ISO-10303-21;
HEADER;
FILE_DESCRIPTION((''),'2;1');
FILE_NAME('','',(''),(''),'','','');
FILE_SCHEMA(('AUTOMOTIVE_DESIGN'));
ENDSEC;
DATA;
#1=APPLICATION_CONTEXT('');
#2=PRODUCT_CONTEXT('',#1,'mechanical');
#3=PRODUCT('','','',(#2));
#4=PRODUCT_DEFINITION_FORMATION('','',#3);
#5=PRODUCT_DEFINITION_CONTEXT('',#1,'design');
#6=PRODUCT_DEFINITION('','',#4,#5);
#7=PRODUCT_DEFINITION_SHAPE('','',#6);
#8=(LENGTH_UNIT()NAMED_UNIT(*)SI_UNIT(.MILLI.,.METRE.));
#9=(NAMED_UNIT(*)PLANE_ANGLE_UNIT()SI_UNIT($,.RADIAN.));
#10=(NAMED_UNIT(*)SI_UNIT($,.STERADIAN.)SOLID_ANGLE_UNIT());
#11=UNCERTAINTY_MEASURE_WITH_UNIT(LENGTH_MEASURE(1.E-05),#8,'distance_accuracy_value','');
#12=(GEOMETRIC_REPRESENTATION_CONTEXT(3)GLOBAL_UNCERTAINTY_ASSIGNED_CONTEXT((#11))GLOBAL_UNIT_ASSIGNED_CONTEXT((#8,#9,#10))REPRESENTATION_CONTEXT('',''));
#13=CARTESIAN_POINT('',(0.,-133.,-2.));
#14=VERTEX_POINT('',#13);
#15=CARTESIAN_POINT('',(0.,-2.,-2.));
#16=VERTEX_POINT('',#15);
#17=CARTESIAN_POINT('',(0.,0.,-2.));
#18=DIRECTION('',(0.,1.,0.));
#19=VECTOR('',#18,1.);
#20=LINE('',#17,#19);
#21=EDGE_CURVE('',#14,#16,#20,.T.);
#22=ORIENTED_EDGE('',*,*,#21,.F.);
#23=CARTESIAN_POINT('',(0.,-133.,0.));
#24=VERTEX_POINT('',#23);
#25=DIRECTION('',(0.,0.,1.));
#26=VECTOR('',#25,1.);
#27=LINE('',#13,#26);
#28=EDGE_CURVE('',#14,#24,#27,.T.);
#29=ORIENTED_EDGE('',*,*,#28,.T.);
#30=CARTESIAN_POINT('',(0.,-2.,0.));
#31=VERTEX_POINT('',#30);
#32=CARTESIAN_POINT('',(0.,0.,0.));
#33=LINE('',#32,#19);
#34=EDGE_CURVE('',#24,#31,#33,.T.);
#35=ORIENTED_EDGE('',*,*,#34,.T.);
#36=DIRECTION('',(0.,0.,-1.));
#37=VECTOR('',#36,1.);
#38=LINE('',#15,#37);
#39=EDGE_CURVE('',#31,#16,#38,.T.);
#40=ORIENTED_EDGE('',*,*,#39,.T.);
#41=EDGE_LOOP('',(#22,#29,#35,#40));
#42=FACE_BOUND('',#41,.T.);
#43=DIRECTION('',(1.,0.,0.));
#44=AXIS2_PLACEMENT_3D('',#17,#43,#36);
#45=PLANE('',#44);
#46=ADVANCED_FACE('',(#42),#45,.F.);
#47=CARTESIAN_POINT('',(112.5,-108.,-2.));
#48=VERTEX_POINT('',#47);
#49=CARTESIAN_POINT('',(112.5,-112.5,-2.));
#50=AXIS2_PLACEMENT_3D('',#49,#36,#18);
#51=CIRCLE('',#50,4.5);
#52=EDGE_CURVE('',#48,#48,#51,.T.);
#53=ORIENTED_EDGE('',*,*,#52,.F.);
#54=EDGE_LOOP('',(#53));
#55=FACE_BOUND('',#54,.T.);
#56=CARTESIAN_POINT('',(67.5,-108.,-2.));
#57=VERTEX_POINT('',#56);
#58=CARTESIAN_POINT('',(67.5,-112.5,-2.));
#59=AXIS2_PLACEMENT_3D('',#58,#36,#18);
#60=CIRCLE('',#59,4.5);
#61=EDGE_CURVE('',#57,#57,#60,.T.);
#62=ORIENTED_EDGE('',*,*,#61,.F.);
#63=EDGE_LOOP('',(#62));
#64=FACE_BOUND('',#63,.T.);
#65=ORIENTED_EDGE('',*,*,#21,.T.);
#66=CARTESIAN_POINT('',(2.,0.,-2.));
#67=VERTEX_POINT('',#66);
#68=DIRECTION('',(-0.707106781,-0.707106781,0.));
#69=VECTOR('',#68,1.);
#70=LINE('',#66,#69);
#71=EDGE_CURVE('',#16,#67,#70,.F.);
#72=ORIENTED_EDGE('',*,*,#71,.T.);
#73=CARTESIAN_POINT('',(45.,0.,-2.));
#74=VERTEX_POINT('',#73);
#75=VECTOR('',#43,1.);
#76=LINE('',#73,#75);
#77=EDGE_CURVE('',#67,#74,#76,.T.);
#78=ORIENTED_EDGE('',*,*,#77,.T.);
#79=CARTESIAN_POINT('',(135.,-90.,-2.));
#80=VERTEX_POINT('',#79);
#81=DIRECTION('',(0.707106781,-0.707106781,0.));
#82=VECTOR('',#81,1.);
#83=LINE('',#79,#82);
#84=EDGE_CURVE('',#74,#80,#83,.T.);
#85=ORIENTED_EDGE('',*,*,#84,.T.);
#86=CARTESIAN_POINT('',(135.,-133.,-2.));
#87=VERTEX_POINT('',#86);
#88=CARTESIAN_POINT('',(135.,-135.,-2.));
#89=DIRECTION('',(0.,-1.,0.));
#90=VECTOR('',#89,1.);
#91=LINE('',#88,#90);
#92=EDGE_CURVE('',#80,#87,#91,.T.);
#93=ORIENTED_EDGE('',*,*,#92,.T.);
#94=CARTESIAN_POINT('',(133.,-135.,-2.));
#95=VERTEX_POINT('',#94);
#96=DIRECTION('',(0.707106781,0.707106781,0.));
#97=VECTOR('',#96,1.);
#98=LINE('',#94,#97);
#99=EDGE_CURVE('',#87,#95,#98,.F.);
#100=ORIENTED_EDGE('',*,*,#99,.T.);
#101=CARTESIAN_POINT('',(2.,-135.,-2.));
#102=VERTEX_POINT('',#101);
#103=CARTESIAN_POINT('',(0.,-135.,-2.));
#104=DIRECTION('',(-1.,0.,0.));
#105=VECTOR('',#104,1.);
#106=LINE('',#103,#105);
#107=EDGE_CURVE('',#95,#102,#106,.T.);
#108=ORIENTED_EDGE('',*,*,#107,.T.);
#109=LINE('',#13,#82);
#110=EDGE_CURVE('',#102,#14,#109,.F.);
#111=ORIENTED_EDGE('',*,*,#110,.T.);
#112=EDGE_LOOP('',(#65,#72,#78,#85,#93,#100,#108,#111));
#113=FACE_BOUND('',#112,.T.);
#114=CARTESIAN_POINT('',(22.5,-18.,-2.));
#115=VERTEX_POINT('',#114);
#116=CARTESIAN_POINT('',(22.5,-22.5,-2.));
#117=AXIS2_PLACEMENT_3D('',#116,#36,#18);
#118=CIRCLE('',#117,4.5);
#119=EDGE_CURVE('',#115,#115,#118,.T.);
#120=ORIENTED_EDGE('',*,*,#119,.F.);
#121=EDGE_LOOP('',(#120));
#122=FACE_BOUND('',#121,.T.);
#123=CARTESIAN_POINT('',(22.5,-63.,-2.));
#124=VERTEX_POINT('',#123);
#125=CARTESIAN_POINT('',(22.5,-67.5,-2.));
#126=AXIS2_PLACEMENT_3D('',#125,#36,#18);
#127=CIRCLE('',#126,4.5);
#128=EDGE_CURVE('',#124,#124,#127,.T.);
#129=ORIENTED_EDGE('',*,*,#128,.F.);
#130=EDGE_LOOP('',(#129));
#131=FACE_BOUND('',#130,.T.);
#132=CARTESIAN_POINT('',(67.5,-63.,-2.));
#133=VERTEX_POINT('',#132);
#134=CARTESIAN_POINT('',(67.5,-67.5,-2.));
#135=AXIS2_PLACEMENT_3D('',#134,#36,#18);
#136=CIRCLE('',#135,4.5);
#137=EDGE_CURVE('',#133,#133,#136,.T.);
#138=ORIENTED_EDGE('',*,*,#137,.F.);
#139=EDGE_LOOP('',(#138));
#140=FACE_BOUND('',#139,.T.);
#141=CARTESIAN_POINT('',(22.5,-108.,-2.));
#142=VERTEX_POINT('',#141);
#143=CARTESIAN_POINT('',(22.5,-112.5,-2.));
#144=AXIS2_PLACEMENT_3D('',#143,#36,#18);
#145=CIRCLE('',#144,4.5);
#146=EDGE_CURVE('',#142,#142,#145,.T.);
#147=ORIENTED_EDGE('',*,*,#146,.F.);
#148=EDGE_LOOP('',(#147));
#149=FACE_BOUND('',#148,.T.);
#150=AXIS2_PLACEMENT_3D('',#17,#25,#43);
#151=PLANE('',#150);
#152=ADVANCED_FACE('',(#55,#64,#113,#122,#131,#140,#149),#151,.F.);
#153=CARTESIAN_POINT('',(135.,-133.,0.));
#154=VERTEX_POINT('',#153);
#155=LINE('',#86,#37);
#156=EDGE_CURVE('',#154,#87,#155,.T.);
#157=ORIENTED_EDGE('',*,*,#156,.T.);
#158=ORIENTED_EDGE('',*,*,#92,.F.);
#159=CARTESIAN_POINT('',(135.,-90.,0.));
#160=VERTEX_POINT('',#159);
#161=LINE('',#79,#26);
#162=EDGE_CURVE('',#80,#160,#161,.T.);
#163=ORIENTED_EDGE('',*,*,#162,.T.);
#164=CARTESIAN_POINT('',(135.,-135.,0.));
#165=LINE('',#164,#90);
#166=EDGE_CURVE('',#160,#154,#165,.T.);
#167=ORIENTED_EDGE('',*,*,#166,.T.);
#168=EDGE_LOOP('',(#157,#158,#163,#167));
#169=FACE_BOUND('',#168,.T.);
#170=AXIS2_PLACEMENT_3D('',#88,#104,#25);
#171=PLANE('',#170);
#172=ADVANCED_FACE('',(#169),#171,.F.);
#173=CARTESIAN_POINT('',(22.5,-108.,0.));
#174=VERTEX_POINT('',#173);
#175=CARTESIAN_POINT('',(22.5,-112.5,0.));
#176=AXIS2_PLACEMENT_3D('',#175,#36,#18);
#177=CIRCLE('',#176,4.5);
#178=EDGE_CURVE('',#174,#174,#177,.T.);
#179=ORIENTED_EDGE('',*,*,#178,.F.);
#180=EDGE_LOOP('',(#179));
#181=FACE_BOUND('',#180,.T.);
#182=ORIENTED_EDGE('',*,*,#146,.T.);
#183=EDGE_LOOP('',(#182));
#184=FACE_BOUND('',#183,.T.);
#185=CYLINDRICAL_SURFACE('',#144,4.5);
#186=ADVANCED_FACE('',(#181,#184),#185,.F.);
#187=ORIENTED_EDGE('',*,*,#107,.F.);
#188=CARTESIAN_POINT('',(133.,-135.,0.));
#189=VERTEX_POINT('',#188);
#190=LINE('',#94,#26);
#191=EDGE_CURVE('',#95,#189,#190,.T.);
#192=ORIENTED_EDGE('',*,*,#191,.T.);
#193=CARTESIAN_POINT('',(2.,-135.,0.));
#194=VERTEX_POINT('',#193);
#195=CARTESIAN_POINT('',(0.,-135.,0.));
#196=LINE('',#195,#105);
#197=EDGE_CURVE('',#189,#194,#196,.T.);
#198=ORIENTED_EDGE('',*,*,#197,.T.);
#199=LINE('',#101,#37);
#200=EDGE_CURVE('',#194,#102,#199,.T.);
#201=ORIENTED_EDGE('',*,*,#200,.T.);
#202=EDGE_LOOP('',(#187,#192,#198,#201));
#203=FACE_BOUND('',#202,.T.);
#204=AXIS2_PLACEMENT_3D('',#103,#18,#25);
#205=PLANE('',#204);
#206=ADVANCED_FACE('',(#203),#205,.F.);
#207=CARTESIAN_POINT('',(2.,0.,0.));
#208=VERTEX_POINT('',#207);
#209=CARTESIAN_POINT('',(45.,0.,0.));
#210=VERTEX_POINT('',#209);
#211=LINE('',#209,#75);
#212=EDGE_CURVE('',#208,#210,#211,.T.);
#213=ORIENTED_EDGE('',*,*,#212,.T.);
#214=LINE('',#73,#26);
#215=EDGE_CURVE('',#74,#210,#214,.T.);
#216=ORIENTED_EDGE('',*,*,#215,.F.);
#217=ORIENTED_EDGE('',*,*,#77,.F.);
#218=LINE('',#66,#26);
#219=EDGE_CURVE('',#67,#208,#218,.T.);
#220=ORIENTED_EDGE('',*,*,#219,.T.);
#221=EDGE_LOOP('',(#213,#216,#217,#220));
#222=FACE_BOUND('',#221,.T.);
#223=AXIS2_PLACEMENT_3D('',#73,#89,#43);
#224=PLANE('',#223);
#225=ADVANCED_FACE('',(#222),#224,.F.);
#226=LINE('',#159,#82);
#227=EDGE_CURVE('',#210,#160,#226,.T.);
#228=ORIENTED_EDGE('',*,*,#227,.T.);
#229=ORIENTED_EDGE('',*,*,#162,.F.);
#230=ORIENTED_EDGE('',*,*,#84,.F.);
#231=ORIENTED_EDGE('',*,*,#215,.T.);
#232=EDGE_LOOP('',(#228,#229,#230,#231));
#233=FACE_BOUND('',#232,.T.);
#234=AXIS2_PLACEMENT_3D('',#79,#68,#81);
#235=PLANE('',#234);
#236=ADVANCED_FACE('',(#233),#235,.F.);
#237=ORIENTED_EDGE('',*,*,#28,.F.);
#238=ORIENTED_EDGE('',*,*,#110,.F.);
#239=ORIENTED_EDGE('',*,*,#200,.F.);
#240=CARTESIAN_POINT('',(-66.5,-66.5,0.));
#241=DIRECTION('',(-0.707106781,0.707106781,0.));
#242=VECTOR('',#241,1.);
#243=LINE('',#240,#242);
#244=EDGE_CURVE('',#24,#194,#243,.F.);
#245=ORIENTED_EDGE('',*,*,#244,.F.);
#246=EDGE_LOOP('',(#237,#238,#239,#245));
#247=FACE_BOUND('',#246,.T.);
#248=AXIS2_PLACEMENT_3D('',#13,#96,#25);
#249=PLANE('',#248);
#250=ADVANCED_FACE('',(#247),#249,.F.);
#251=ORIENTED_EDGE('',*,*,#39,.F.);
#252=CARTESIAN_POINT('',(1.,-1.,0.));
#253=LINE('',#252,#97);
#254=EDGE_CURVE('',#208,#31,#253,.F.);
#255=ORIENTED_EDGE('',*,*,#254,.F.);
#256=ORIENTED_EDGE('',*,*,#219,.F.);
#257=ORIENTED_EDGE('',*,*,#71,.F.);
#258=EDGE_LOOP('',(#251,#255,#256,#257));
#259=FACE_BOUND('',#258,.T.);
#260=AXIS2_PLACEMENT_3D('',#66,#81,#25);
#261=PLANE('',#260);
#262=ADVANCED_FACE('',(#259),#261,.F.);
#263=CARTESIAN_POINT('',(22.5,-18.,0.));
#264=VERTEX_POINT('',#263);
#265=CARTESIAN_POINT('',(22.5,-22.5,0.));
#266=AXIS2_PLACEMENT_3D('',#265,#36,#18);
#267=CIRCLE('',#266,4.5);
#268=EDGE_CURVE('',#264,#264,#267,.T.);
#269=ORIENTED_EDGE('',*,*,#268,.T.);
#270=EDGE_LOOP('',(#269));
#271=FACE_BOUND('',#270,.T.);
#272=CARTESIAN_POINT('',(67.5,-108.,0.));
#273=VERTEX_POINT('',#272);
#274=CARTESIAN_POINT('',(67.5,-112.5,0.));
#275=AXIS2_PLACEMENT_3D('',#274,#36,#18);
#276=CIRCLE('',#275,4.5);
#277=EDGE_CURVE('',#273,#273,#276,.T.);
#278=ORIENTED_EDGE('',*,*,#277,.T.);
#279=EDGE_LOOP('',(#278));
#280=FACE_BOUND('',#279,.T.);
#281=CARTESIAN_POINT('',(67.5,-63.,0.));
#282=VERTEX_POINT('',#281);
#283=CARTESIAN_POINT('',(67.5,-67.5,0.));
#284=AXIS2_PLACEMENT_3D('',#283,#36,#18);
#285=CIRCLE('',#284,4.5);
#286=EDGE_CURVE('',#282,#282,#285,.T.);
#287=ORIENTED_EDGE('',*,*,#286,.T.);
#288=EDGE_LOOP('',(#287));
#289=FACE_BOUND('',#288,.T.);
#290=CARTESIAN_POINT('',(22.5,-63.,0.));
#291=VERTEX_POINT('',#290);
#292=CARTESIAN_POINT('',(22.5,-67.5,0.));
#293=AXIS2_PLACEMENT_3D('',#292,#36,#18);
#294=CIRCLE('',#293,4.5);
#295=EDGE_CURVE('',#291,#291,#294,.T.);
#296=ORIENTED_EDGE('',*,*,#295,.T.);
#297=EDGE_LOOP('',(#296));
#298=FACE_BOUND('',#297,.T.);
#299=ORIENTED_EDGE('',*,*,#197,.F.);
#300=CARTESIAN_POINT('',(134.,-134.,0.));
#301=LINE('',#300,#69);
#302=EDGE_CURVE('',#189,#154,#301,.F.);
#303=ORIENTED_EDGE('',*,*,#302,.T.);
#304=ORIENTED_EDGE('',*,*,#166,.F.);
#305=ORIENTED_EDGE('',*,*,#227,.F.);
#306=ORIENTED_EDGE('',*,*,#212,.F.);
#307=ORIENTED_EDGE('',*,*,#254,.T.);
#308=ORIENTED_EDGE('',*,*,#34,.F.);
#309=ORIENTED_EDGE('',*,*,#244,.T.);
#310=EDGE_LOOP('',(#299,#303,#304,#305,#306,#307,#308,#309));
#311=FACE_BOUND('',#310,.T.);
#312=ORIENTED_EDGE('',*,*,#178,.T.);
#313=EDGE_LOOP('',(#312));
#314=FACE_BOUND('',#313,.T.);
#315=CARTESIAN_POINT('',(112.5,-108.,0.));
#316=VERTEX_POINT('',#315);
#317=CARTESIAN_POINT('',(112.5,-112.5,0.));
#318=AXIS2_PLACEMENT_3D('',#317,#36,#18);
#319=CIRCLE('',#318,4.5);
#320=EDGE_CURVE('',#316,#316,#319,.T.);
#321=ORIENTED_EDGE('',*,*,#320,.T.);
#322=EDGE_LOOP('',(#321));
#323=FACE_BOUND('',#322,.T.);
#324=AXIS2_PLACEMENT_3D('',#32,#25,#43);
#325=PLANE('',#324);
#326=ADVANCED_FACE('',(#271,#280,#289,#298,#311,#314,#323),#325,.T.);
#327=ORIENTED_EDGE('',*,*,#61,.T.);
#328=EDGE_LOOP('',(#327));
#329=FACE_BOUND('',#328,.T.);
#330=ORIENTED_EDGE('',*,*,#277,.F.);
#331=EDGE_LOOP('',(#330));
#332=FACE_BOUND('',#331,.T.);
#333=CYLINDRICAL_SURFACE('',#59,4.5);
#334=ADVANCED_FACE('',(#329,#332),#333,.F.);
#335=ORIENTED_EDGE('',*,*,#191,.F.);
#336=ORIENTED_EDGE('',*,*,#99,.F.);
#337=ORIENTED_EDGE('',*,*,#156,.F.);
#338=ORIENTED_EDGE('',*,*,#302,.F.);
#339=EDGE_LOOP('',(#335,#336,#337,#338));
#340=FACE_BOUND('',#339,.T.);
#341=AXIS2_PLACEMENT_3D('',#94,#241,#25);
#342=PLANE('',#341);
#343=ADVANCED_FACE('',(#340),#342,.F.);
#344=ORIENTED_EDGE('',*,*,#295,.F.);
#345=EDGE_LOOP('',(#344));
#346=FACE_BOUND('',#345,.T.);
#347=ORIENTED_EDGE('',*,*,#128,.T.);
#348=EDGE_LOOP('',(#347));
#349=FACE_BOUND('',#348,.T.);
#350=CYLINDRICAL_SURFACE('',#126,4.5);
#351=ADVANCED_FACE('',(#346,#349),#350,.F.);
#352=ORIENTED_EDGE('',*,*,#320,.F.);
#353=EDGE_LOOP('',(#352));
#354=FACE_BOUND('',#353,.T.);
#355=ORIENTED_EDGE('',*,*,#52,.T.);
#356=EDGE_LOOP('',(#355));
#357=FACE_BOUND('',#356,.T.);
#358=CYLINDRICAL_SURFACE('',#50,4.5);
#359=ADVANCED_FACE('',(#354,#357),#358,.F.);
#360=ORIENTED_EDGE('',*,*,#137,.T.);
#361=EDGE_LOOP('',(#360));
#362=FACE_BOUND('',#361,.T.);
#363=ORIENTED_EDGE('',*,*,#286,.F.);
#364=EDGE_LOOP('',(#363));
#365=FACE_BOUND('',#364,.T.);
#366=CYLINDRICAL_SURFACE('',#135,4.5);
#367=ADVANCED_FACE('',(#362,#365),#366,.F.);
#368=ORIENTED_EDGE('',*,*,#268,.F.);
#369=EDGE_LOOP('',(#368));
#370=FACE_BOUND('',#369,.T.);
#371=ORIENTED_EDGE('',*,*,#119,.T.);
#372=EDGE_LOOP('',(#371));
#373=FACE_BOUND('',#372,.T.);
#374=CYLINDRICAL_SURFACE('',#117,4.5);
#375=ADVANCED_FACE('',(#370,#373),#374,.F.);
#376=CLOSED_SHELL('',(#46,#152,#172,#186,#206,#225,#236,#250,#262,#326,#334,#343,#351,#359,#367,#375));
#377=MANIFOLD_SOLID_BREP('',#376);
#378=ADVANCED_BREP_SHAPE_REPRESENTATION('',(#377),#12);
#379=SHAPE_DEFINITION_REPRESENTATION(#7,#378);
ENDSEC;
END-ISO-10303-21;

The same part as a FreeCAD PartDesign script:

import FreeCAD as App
import Part
import Sketcher

V = App.Vector
Q = App.Units.Quantity


def edges_at(feature, points):
    """Names of the edges that pass closest to the given points."""
    edges = feature.Shape.Edges
    near = lambda p: min(range(len(edges)), key=lambda i: edges[i].distToShape(Part.Vertex(*p))[0])
    return sorted({f"Edge{near(p) + 1}" for p in points})

doc = App.newDocument("Part")
body = doc.addObject("PartDesign::Body", "Body")

sketch1 = body.newObject("Sketcher::SketchObject", "Sketch")
sketch1.AttachmentSupport = (doc.getObject("XY_Plane"), [""])
sketch1.MapMode = "FlatFace"
sketch1.addGeometry(Part.LineSegment(V(0, -135, 0), V(0, 0, 0)), False)
sketch1.addGeometry(Part.LineSegment(V(0, 0, 0), V(45, 0, 0)), False)
sketch1.addGeometry(Part.LineSegment(V(45, 0, 0), V(135, -90, 0)), False)
sketch1.addGeometry(Part.LineSegment(V(135, -90, 0), V(135, -135, 0)), False)
sketch1.addGeometry(Part.LineSegment(V(135, -135, 0), V(0, -135, 0)), False)
sketch1.addConstraint(Sketcher.Constraint("Coincident", 0, 2, 1, 1))
sketch1.addConstraint(Sketcher.Constraint("Coincident", 1, 2, 2, 1))
sketch1.addConstraint(Sketcher.Constraint("Coincident", 2, 2, 3, 1))
sketch1.addConstraint(Sketcher.Constraint("Coincident", 3, 2, 4, 1))
sketch1.addConstraint(Sketcher.Constraint("Coincident", 4, 2, 0, 1))
sketch1.addConstraint(Sketcher.Constraint("Vertical", 0))
sketch1.addConstraint(Sketcher.Constraint("Horizontal", 1))
sketch1.addConstraint(Sketcher.Constraint("Vertical", 3))
sketch1.addConstraint(Sketcher.Constraint("Horizontal", 4))
sketch1.addConstraint(Sketcher.Constraint("Coincident", 0, 2, -1, 1))
sketch1.addConstraint(Sketcher.Constraint("Equal", 4, 0))
sketch1.addConstraint(Sketcher.Constraint("Equal", 1, 3))
sketch1.addConstraint(Sketcher.Constraint("DistanceX", 1, 1, 1, 2, Q("45 mm")))
sketch1.addConstraint(Sketcher.Constraint("DistanceX", 4, 2, 4, 1, Q("135 mm")))
pad1 = body.newObject("PartDesign::Pad", "Pad")
pad1.Profile = sketch1
pad1.Length = 2
pad1.Reversed = True

sketch2 = body.newObject("Sketcher::SketchObject", "Sketch001")
sketch2.AttachmentSupport = (doc.getObject("XY_Plane"), [""])
sketch2.MapMode = "FlatFace"
sketch2.AttachmentOffset = App.Placement(V(0, 0, -2), App.Rotation())
sketch2.addGeometry(Part.Circle(V(67.5, -112.5, 0), V(0, 0, 1), 4.5), False)
sketch2.addGeometry(Part.Circle(V(22.5, -112.5, 0), V(0, 0, 1), 4.5), False)
sketch2.addGeometry(Part.Circle(V(22.5, -67.5, 0), V(0, 0, 1), 4.5), False)
sketch2.addGeometry(Part.Circle(V(22.5, -22.5, 0), V(0, 0, 1), 4.5), False)
sketch2.addGeometry(Part.Circle(V(112.5, -112.5, 0), V(0, 0, 1), 4.5), False)
sketch2.addGeometry(Part.Circle(V(67.5, -67.5, 0), V(0, 0, 1), 4.5), False)
sketch2.addConstraint(Sketcher.Constraint("Equal", 0, 1))
sketch2.addConstraint(Sketcher.Constraint("Equal", 1, 2))
sketch2.addConstraint(Sketcher.Constraint("Equal", 2, 3))
sketch2.addConstraint(Sketcher.Constraint("Equal", 3, 4))
sketch2.addConstraint(Sketcher.Constraint("Equal", 4, 5))
sketch2.addConstraint(Sketcher.Constraint("Horizontal", 0, 3, 1, 3))
sketch2.addConstraint(Sketcher.Constraint("Horizontal", 1, 3, 4, 3))
sketch2.addConstraint(Sketcher.Constraint("Horizontal", 2, 3, 5, 3))
sketch2.addConstraint(Sketcher.Constraint("Vertical", 1, 3, 2, 3))
sketch2.addConstraint(Sketcher.Constraint("Vertical", 2, 3, 3, 3))
sketch2.addConstraint(Sketcher.Constraint("Vertical", 0, 3, 5, 3))
sketch2.addConstraint(Sketcher.Constraint("Diameter", 0, Q("9 mm")))
sketch2.addConstraint(Sketcher.Constraint("DistanceX", 1, 3, 0, 3, Q("45 mm")))
sketch2.addConstraint(Sketcher.Constraint("DistanceY", 1, 3, 2, 3, Q("45 mm")))
sketch2.addConstraint(Sketcher.Constraint("DistanceY", 2, 3, 3, 3, Q("45 mm")))
sketch2.addConstraint(Sketcher.Constraint("DistanceX", 0, 3, 4, 3, Q("45 mm")))
sketch2.addConstraint(Sketcher.Constraint("DistanceX", -1, 1, 0, 3, Q("67.5 mm")))
sketch2.addConstraint(Sketcher.Constraint("DistanceY", 0, 3, -1, 1, Q("112.5 mm")))
doc.recompute()
hole = body.newObject("PartDesign::Hole", "Hole")
hole.Profile = sketch2
hole.ThreadType = "None"
hole.Diameter = 9
hole.DepthType = "ThroughAll"
hole.Reversed = True
doc.recompute()

chamfer = body.newObject("PartDesign::Chamfer", "Chamfer")
chamfer.Base = (hole, edges_at(hole, [(0, 0, -1), (0, -135, -1), (135, -135, -1)]))
chamfer.Size = 2

doc.recompute()
